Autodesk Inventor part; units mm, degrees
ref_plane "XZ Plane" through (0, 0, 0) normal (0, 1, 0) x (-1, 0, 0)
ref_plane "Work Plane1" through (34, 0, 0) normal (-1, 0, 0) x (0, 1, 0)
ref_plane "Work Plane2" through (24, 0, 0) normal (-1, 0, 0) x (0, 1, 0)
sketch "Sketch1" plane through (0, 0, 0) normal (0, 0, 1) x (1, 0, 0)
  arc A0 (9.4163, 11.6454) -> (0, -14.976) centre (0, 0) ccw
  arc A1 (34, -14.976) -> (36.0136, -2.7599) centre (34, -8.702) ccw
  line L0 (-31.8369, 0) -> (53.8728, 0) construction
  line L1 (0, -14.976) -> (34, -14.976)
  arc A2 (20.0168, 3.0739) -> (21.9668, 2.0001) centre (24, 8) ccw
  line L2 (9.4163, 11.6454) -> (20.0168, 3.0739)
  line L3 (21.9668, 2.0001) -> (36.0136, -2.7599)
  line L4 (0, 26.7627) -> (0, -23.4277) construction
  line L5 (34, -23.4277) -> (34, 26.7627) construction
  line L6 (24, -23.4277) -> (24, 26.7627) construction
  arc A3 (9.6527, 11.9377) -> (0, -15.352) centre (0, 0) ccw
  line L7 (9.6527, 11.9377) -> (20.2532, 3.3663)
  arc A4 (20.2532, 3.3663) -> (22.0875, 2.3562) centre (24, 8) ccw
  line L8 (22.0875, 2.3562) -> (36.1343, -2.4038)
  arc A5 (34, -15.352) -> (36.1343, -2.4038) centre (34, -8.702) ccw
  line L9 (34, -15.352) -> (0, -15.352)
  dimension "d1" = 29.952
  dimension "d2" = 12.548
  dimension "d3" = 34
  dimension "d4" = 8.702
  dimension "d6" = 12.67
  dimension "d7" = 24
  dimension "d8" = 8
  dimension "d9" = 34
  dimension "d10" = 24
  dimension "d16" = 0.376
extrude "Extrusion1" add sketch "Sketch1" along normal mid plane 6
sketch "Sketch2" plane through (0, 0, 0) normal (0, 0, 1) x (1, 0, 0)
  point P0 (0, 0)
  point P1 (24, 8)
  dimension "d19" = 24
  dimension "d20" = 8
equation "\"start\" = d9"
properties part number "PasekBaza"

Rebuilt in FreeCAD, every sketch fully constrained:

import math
import FreeCAD as App
import Part
import Sketcher
from FreeCAD import Vector
Q = App.Units.Quantity

doc = App.newDocument("Part")
params = doc.addObject("Spreadsheet::Sheet", "Params")
for row, (alias, value) in enumerate([
    ("sketch1_width", "34 mm"),
    ("sketch1_radius", "6.65 mm"),
    ("pad1_length", "6 mm"),
], start=1):
    params.set(f"A{row}", alias)
    params.set(f"B{row}", "=" + value)
    params.setAlias(f"B{row}", alias)

body = doc.addObject("PartDesign::Body", "Body")

# Sketch on XY plane
sketch1 = body.newObject("Sketcher::SketchObject", "Sketch")
sketch1.AttachmentSupport = (doc.getObject("XY_Plane"), [""])
sketch1.MapMode = "FlatFace"
sketch1.addGeometry([
    Part.LineSegment(Vector(20.3, 3.4, 0), Vector(9.7, 11.9, 0)),  # 0
    Part.ArcOfCircle(Part.Circle(Vector(0, 0, 0), Vector(0, 0, 1), 15.4), math.radians(51), math.radians(270)),  # 1
    Part.LineSegment(Vector(0, -15.4, 0), Vector(34, -15.4, 0)),  # 2
    Part.ArcOfCircle(Part.Circle(Vector(34, -8.7, 0), Vector(0, 0, 1), 6.7), math.radians(-90), math.radians(71)),  # 3
    Part.LineSegment(Vector(36.1, -2.4, 0), Vector(22.1, 2.4, 0)),  # 4
    Part.ArcOfCircle(Part.Circle(Vector(24, 8, 0), Vector(0, 0, 1), 6), math.radians(-129), math.radians(-109)),  # 5
    Part.ArcOfCircle(Part.Circle(Vector(0, 0, 0), Vector(0, 0, 1), 15), math.radians(51), math.radians(270)),  # 6
    Part.LineSegment(Vector(9.4, 11.6, 0), Vector(20, 3.1, 0)),  # 7
    Part.ArcOfCircle(Part.Circle(Vector(24, 8, 0), Vector(0, 0, 1), 6.3), math.radians(-129), math.radians(-109)),  # 8
    Part.LineSegment(Vector(22, 2, 0), Vector(36, -2.8, 0)),  # 9
    Part.ArcOfCircle(Part.Circle(Vector(34, -8.7, 0), Vector(0, 0, 1), 6.3), math.radians(-90), math.radians(71)),  # 10
    Part.LineSegment(Vector(34, -15, 0), Vector(0, -15, 0)),  # 11
], False)
sketch1.addConstraint([
    Sketcher.Constraint("Tangent", 0, 2, 1, 1),
    Sketcher.Constraint("Tangent", 1, 2, 2, 1),
    Sketcher.Constraint("Tangent", 2, 2, 3, 1),
    Sketcher.Constraint("Tangent", 3, 2, 4, 1),
    Sketcher.Constraint("Tangent", 4, 2, 5, 2),
    Sketcher.Constraint("Tangent", 5, 1, 0, 1),
    Sketcher.Constraint("Tangent", 6, 1, 7, 1),
    Sketcher.Constraint("Tangent", 7, 2, 8, 1),
    Sketcher.Constraint("Tangent", 8, 2, 9, 1),
    Sketcher.Constraint("Tangent", 9, 2, 10, 2),
    Sketcher.Constraint("Tangent", 10, 1, 11, 1),
    Sketcher.Constraint("Tangent", 11, 2, 6, 2),
    Sketcher.Constraint("Horizontal", 2),
    Sketcher.Constraint("Horizontal", 11),
    Sketcher.Constraint("Coincident", 1, 3, -1, 1),
    Sketcher.Constraint("Coincident", 6, 3, -1, 1),
    Sketcher.Constraint("Coincident", 10, 3, 3, 3),
    Sketcher.Constraint("Parallel", 0, 7),
    Sketcher.Constraint("Parallel", 4, 9),
    Sketcher.Constraint("Equal", 0, 7),
    Sketcher.Constraint("DistanceX", 2, 1, 2, 2, Q("34 mm")),
    Sketcher.Constraint("DistanceX", -1, 1, 8, 3, Q("24 mm")),
    Sketcher.Constraint("DistanceY", -1, 1, 8, 3, Q("8 mm")),
    Sketcher.Constraint("Radius", 6, Q("14.976 mm")),
    Sketcher.Constraint("Radius", 8, Q("6.335 mm")),
    Sketcher.Constraint("Radius", 10, Q("6.274 mm")),
    Sketcher.Constraint("Radius", 3, Q("6.65 mm")),
])
sketch1.setExpression("Constraints[20]", "Params.sketch1_width")
sketch1.setExpression("Constraints[26]", "Params.sketch1_radius")
pad1 = body.newObject("PartDesign::Pad", "Pad")
pad1.Profile = sketch1
pad1.setExpression("Length", "Params.pad1_length")
pad1.Midplane = True

doc.recompute()
